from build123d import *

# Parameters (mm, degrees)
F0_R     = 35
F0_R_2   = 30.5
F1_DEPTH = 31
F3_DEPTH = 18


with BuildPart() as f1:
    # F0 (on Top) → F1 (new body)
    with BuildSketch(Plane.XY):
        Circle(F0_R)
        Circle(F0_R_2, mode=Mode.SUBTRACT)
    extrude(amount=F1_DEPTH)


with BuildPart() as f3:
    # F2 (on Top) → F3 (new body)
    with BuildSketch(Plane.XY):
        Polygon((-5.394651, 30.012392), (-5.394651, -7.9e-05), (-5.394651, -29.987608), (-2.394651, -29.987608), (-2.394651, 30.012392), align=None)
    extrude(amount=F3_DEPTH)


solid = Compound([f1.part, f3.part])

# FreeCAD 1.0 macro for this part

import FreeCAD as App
import Part
import Sketcher
from FreeCAD import Vector

doc = App.newDocument("Part")
params = doc.addObject("Spreadsheet::Sheet", "Params")
for row, (alias, value) in enumerate([
    ("sketch1_diameter", "70 mm"),
    ("sketch1_diameter2", "61 mm"),
    ("pad1_length", "31 mm"),
    ("sketch2_width", "3 mm"),
    ("sketch2_height", "60 mm"),
    ("pad2_length", "18 mm"),
], start=1):
    params.set(f"A{row}", alias)
    params.set(f"B{row}", "=" + value)
    params.setAlias(f"B{row}", alias)

body = doc.addObject("PartDesign::Body", "Body")

# Sketch on XY plane
sketch1 = body.newObject("Sketcher::SketchObject", "Sketch")
sketch1.AttachmentSupport = (doc.getObject("XY_Plane"), [""])
sketch1.MapMode = "FlatFace"
sketch1.addGeometry(Part.Circle(Vector(0, 0, 0), Vector(0, 0, 1), 35), False)
sketch1.addGeometry(Part.Circle(Vector(0, 0, 0), Vector(0, 0, 1), 30.5), False)
sketch1.addConstraint(Sketcher.Constraint("Coincident", 0, 3, -1, 1))
sketch1.addConstraint(Sketcher.Constraint("Coincident", 1, 3, -1, 1))
sketch1.addConstraint(Sketcher.Constraint("Diameter", 0, 70.0))
sketch1.addConstraint(Sketcher.Constraint("Diameter", 1, 61.0))
sketch1.setExpression("Constraints[2]", "Params.sketch1_diameter")
sketch1.setExpression("Constraints[3]", "Params.sketch1_diameter2")
pad1 = body.newObject("PartDesign::Pad", "Pad")
pad1.Profile = sketch1
pad1.setExpression("Length", "Params.pad1_length")
body2 = doc.addObject("PartDesign::Body", "Body001")

# Sketch on XY plane
sketch2 = body2.newObject("Sketcher::SketchObject", "Sketch001")
sketch2.AttachmentSupport = (doc.getObject("XY_Plane001"), [""])
sketch2.MapMode = "FlatFace"
sketch2.addGeometry(Part.LineSegment(Vector(-5.394651, 30.012392, 0), Vector(-5.394651, -29.987608, 0)), False)
sketch2.addGeometry(Part.LineSegment(Vector(-5.394651, -29.987608, 0), Vector(-2.394651, -29.987608, 0)), False)
sketch2.addGeometry(Part.LineSegment(Vector(-2.394651, -29.987608, 0), Vector(-2.394651, 30.012392, 0)), False)
sketch2.addGeometry(Part.LineSegment(Vector(-2.394651, 30.012392, 0), Vector(-5.394651, 30.012392, 0)), False)
sketch2.addConstraint(Sketcher.Constraint("Coincident", 0, 2, 1, 1))
sketch2.addConstraint(Sketcher.Constraint("Coincident", 1, 2, 2, 1))
sketch2.addConstraint(Sketcher.Constraint("Coincident", 2, 2, 3, 1))
sketch2.addConstraint(Sketcher.Constraint("Coincident", 3, 2, 0, 1))
sketch2.addConstraint(Sketcher.Constraint("Vertical", 0))
sketch2.addConstraint(Sketcher.Constraint("Horizontal", 1))
sketch2.addConstraint(Sketcher.Constraint("Vertical", 2))
sketch2.addConstraint(Sketcher.Constraint("Horizontal", 3))
sketch2.addConstraint(Sketcher.Constraint("DistanceX", 1, 1, 1, 2, 3.0))
sketch2.addConstraint(Sketcher.Constraint("DistanceY", 0, 2, 0, 1, 60.0))
sketch2.addConstraint(Sketcher.Constraint("DistanceX", 0, 2, -1, 1, 5.394651))
sketch2.addConstraint(Sketcher.Constraint("DistanceY", 0, 2, -1, 1, 29.987608))
sketch2.setExpression("Constraints[8]", "Params.sketch2_width")
sketch2.setExpression("Constraints[9]", "Params.sketch2_height")
pad2 = body2.newObject("PartDesign::Pad", "Pad001")
pad2.Profile = sketch2
pad2.setExpression("Length", "Params.pad2_length")

doc.recompute()
